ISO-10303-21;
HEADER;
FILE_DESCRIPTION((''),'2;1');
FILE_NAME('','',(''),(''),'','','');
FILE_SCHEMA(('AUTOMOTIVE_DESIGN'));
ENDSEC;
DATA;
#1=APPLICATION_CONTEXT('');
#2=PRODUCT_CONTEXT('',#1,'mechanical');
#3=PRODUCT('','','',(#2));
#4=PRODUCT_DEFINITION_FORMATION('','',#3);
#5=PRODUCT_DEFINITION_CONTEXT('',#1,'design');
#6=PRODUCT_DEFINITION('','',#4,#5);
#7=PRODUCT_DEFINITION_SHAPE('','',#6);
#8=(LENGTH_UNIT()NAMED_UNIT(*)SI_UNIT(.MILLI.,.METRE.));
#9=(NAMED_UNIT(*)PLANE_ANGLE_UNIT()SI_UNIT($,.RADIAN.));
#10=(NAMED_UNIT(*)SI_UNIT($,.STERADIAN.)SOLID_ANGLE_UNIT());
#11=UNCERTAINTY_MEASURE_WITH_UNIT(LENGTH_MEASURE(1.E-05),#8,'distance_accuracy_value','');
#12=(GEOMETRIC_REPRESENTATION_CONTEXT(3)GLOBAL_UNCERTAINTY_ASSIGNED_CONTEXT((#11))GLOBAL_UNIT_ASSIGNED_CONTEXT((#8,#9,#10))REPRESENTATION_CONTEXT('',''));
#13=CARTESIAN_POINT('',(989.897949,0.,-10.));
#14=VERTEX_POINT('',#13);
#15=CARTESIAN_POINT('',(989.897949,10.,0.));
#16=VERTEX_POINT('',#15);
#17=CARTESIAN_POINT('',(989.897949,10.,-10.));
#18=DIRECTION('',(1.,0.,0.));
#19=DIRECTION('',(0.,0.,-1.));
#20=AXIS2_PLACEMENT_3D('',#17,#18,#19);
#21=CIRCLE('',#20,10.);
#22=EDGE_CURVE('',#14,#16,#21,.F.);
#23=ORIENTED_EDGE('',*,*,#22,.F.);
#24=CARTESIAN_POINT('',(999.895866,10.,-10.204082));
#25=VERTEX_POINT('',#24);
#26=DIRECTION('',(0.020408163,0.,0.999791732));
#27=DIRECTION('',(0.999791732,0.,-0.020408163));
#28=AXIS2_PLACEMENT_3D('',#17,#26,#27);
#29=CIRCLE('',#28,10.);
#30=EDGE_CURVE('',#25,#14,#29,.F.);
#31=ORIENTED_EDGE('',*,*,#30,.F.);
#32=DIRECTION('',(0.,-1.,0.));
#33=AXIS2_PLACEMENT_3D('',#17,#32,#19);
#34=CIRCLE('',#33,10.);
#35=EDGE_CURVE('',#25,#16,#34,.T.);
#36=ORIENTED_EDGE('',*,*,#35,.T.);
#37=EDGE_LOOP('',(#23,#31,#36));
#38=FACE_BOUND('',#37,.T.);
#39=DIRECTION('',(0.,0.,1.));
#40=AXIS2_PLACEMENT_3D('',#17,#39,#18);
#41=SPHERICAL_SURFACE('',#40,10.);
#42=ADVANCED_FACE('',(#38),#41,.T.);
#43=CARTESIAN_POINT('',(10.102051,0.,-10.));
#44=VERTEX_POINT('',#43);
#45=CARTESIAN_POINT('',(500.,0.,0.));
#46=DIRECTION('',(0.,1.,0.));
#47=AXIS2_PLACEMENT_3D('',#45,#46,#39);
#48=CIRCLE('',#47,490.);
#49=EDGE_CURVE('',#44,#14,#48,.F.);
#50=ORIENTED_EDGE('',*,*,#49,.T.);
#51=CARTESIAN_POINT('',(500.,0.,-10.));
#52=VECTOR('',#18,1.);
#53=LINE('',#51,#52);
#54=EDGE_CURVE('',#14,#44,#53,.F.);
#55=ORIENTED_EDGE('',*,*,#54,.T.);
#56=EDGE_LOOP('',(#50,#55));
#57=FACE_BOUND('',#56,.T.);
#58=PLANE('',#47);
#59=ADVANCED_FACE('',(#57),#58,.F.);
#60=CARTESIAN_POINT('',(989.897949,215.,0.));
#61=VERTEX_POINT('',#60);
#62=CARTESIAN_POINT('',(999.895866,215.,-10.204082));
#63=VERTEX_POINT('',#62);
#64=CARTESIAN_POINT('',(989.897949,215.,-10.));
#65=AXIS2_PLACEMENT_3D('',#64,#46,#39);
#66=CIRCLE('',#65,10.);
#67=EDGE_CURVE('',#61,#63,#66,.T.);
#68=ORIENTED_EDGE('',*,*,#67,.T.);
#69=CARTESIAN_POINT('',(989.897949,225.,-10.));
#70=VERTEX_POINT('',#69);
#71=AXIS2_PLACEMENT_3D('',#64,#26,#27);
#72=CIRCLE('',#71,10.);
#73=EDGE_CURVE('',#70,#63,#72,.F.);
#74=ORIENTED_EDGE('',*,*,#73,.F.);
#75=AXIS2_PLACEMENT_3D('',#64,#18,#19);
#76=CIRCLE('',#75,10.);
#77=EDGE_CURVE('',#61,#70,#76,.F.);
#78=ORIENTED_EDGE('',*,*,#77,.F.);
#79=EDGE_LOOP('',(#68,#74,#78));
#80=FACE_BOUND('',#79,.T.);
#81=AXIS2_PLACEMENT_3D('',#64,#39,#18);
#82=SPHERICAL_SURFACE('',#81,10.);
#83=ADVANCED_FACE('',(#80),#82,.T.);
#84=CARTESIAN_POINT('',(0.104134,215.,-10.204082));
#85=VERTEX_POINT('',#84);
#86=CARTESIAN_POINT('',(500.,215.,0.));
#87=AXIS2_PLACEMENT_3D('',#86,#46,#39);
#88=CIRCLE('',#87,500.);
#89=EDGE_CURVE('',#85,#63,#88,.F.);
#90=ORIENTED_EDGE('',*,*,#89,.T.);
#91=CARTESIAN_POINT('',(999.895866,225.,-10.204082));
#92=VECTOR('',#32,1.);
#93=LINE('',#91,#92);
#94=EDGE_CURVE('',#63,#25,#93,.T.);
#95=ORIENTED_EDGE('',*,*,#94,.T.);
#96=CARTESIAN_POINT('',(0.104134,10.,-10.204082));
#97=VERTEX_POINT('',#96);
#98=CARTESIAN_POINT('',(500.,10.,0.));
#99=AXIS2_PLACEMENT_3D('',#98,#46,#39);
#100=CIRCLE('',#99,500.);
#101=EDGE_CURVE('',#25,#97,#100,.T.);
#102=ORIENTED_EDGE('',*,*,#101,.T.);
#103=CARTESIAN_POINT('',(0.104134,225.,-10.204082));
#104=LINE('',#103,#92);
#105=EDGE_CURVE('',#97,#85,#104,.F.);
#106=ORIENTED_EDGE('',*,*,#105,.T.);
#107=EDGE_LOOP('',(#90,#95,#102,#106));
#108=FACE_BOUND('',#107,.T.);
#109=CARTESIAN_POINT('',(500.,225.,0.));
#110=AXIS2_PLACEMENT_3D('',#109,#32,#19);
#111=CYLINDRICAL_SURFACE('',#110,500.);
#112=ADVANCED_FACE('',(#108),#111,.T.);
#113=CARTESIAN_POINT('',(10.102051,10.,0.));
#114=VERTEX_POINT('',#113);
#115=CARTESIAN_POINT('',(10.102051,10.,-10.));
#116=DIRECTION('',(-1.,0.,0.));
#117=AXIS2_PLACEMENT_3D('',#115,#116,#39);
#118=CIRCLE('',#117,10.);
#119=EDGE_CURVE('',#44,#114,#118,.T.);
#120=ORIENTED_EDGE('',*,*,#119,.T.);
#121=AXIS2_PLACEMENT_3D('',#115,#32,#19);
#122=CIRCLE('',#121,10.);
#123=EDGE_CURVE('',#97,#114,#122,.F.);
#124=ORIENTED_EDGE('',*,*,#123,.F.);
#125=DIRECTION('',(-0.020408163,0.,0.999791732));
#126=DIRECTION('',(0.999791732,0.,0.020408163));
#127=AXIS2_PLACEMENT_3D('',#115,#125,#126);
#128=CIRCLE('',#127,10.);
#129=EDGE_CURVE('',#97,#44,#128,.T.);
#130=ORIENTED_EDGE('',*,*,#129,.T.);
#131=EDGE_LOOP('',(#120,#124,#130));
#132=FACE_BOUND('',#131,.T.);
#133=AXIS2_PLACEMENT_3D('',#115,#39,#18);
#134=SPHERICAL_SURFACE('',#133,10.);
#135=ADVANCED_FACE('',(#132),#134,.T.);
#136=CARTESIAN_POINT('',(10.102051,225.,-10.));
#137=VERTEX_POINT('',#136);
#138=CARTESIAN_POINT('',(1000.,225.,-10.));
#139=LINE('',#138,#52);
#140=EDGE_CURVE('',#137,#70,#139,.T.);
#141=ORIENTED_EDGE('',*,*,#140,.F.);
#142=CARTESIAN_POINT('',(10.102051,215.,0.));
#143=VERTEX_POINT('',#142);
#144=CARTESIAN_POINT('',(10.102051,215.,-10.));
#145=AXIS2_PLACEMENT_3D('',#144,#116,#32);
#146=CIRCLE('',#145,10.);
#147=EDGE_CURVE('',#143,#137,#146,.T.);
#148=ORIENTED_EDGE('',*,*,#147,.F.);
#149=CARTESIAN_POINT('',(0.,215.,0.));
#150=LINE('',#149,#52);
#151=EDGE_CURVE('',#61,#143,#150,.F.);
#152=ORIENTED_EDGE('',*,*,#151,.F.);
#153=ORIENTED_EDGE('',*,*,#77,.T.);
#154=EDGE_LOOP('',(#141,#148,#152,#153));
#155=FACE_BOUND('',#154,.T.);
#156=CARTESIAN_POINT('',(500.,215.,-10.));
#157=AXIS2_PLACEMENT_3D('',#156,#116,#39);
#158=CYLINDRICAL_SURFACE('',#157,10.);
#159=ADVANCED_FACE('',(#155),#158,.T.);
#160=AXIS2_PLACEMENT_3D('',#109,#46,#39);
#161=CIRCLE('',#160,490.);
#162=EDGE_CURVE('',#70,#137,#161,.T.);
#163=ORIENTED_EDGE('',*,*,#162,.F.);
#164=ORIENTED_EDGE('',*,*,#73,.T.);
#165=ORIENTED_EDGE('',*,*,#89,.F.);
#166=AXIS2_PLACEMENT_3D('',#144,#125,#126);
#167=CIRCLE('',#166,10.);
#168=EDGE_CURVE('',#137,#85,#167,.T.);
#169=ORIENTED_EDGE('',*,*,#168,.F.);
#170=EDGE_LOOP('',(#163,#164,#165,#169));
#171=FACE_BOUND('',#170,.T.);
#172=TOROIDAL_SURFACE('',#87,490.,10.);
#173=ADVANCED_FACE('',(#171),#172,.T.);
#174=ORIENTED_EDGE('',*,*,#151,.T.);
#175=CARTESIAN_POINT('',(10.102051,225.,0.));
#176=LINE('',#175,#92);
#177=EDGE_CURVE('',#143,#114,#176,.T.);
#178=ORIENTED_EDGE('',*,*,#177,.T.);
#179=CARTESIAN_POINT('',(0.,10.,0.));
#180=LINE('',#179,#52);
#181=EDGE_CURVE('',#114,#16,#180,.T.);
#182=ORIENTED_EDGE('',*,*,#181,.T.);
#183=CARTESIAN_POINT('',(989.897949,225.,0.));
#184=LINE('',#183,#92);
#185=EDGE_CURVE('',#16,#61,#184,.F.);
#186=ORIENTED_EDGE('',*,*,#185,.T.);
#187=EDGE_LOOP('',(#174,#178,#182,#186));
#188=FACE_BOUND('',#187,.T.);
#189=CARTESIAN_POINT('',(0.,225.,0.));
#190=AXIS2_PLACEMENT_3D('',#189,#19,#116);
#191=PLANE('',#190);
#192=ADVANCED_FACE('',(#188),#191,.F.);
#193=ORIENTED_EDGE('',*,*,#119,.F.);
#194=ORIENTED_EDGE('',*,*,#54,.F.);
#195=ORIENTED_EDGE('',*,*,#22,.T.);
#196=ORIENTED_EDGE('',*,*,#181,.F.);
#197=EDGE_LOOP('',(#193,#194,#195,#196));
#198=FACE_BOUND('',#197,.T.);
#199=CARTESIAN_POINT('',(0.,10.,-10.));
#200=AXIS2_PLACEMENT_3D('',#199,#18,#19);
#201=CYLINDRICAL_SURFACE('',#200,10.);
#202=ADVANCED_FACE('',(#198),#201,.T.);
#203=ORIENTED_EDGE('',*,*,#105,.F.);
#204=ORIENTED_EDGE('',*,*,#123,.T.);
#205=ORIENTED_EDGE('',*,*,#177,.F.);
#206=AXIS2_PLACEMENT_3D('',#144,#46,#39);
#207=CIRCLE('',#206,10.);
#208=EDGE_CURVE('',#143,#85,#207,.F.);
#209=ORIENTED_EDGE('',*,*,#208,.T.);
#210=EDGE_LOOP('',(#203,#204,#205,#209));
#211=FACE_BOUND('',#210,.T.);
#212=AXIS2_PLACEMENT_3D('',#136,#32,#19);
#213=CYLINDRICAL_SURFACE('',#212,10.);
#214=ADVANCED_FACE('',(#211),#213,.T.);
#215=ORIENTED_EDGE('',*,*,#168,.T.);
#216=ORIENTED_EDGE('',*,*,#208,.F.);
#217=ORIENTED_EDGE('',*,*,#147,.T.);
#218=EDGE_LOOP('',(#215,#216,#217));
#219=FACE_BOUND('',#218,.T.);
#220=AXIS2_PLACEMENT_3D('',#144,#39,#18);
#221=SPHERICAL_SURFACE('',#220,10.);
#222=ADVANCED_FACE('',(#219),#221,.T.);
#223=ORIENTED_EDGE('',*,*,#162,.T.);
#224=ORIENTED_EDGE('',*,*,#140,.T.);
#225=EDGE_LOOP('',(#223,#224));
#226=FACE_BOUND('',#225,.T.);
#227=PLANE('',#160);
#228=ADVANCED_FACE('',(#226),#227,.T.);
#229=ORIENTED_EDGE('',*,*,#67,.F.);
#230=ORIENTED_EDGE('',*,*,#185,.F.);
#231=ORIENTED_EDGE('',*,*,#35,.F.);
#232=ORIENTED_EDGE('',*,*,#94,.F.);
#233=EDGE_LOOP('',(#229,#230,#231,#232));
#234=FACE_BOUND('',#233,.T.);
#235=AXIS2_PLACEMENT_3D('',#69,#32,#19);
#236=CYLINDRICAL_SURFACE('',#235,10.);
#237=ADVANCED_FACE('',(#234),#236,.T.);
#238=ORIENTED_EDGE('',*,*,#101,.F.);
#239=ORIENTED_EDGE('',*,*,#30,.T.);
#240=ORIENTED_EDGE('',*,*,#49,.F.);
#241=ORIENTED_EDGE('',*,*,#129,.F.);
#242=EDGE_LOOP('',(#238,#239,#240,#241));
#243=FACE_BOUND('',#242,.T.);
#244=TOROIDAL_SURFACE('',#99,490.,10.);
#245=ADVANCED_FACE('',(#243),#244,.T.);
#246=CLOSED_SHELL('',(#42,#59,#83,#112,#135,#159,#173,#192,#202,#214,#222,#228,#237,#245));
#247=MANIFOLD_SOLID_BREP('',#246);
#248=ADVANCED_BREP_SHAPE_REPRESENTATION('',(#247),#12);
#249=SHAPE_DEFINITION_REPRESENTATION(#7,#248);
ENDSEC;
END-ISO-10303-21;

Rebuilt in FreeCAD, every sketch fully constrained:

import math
import FreeCAD as App
import Part
import Sketcher

doc = App.newDocument("Part")
body = doc.addObject("PartDesign::Body", "Body")

# Sketch on XZ plane
sketch1 = body.newObject("Sketcher::SketchObject", "Sketch")
sketch1.AttachmentSupport = (doc.getObject("XZ_Plane"), [""])
sketch1.MapMode = "FlatFace"
sketch1.addGeometry([
    Part.LineSegment(App.Vector(0, 0, 0), App.Vector(1000, 0, 0)),
    Part.ArcOfCircle(Part.Circle(App.Vector(500, 0, 0), App.Vector(0, 0, 1), 500), math.radians(180), math.radians(360)),
], False)
sketch1.addConstraint([
    Sketcher.Constraint("Coincident", 0, 1, 1, 1),
    Sketcher.Constraint("Coincident", 1, 2, 0, 2),
    Sketcher.Constraint("Horizontal", 0),
    Sketcher.Constraint("Coincident", 0, 1, -1, 1),
    Sketcher.Constraint("PointOnObject", 1, 3, -1),
    Sketcher.Constraint("Radius", 1, 500.0),
])
pad1 = body.newObject("PartDesign::Pad", "Pad")
pad1.Profile = sketch1
pad1.Length = 225
pad1.Reversed = True
doc.recompute()

fillet = body.newObject("PartDesign::Fillet", "Fillet")
fillet.Base = (pad1, ["Edge1"])
fillet.UseAllEdges = True
fillet.Radius = 10

doc.recompute()
